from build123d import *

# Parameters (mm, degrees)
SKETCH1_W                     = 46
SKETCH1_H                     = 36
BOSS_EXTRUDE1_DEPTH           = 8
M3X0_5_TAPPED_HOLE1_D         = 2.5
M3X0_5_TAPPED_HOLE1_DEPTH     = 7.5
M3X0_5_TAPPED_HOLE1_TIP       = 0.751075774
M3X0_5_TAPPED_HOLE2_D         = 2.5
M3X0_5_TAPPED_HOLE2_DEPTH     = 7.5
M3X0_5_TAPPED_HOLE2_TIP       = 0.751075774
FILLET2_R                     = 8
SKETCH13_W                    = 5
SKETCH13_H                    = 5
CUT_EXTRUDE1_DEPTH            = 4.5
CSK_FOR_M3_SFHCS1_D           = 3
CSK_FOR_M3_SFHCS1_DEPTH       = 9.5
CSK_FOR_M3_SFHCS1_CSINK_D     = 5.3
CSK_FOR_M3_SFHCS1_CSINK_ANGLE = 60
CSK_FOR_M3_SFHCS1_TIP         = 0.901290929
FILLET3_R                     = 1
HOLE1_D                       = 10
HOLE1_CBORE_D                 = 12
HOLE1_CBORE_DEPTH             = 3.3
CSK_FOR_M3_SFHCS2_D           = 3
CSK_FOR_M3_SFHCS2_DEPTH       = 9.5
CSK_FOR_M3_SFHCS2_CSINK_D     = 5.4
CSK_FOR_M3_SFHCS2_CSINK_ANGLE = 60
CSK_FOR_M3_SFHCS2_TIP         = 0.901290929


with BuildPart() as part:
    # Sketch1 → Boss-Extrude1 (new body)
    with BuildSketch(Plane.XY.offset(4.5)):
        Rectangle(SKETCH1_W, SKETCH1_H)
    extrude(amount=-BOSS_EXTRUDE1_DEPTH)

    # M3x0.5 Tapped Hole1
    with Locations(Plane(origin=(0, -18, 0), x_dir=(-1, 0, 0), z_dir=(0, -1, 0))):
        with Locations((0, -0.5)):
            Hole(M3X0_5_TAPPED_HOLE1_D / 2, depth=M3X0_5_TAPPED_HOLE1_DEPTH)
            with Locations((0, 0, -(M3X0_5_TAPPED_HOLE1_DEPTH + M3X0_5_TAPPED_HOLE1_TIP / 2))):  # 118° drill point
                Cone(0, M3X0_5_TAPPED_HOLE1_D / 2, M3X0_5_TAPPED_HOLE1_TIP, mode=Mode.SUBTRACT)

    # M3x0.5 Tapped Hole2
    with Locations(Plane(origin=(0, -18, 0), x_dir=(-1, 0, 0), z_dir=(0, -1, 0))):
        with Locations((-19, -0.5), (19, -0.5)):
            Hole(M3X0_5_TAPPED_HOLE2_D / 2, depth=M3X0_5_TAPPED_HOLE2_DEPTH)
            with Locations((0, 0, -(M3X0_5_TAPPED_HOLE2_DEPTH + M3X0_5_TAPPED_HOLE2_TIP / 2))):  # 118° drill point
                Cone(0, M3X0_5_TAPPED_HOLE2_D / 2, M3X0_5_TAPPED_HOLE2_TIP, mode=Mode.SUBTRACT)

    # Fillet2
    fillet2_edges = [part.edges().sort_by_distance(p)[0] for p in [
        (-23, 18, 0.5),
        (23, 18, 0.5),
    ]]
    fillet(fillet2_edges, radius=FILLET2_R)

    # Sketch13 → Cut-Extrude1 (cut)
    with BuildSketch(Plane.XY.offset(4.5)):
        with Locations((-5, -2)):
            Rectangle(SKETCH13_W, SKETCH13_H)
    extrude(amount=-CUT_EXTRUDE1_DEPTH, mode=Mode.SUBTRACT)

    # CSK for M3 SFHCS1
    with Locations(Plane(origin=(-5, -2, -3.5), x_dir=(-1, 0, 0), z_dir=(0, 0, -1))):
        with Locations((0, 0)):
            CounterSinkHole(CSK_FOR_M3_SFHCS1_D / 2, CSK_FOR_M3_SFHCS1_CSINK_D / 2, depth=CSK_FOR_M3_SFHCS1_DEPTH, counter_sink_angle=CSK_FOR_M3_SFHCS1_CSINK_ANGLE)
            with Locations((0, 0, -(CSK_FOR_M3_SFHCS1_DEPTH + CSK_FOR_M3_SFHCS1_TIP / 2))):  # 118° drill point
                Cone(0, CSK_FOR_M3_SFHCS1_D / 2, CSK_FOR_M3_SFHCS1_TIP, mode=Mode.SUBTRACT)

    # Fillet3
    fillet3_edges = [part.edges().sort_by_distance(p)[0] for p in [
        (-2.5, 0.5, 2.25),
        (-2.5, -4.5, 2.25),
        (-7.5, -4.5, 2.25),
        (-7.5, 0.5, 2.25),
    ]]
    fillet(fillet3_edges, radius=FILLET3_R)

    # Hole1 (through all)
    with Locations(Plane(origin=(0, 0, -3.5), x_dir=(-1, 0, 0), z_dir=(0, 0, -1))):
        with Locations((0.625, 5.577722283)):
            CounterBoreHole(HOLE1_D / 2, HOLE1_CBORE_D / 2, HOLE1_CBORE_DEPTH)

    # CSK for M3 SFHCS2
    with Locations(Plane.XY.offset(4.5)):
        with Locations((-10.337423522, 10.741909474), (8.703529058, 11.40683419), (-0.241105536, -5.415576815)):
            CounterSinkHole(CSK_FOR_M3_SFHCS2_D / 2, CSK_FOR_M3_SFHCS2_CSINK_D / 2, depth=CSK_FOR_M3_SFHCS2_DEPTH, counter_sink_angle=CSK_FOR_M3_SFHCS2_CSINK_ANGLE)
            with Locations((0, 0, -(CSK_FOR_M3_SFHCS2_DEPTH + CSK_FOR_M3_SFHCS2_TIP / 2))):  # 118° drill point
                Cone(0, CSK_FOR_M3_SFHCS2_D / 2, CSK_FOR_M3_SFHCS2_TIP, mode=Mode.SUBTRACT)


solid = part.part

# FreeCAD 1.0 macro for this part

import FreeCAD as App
import Part
import Sketcher

V = App.Vector


def edges_at(feature, points):
    """Names of the edges that pass closest to the given points."""
    edges = feature.Shape.Edges
    near = lambda p: min(range(len(edges)), key=lambda i: edges[i].distToShape(Part.Vertex(*p))[0])
    return sorted({f"Edge{near(p) + 1}" for p in points})

doc = App.newDocument("Part")
params = doc.addObject("Spreadsheet::Sheet", "Params")
for row, (alias, value) in enumerate([
    ("sketch1_width", "46 mm"),
    ("sketch1_height", "36 mm"),
    ("pad1_length", "8 mm"),
    ("sketch2_diameter", "2.5 mm"),
    ("hole_diameter", "2.5 mm"),
    ("hole_depth", "7.5 mm"),
    ("sketch3_diameter", "2.5 mm"),
    ("hole2_diameter", "2.5 mm"),
    ("hole2_depth", "7.5 mm"),
    ("fillet_radius", "8 mm"),
    ("sketch4_width", "5 mm"),
    ("pocket1_length", "4.5 mm"),
    ("sketch5_diameter", "3 mm"),
    ("hole3_diameter", "3 mm"),
    ("hole3_depth", "9.5 mm"),
    ("hole3_csink_diameter", "5.3 mm"),
    ("fillet2_radius", "1 mm"),
    ("sketch6_diameter", "10 mm"),
    ("hole4_diameter", "10 mm"),
    ("hole4_cbore_diameter", "12 mm"),
    ("hole4_cbore_depth", "3.3 mm"),
    ("sketch7_diameter", "3 mm"),
    ("hole5_diameter", "3 mm"),
    ("hole5_depth", "9.5 mm"),
    ("hole5_csink_diameter", "5.4 mm"),
], start=1):
    params.set(f"A{row}", alias)
    params.set(f"B{row}", "=" + value)
    params.setAlias(f"B{row}", alias)

body = doc.addObject("PartDesign::Body", "Body")

# Sketch on XY plane
sketch1 = doc.addObject("Sketcher::SketchObject", "Sketch")
body.addObject(sketch1)
sketch1.AttachmentSupport = (doc.XY_Plane, [""])
sketch1.MapMode = "FlatFace"
sketch1.AttachmentOffset = App.Placement(V(0, 0, 4.5), App.Rotation())
sketch1.addGeometry([
    Part.LineSegment(V(-23, 18, 0), V(-23, -18, 0)),
    Part.LineSegment(V(-23, -18, 0), V(23, -18, 0)),
    Part.LineSegment(V(23, -18, 0), V(23, 18, 0)),
    Part.LineSegment(V(23, 18, 0), V(-23, 18, 0)),
], False)
sketch1.addConstraint([
    Sketcher.Constraint("Coincident", 0, 2, 1, 1),
    Sketcher.Constraint("Coincident", 1, 2, 2, 1),
    Sketcher.Constraint("Coincident", 2, 2, 3, 1),
    Sketcher.Constraint("Coincident", 3, 2, 0, 1),
    Sketcher.Constraint("Vertical", 0),
    Sketcher.Constraint("Horizontal", 1),
    Sketcher.Constraint("Vertical", 2),
    Sketcher.Constraint("Horizontal", 3),
    Sketcher.Constraint("Symmetric", 0, 2, 2, 2, -1, 1),
    Sketcher.Constraint("DistanceX", 1, 1, 1, 2, 46.0),
    Sketcher.Constraint("DistanceY", 0, 2, 0, 1, 36.0),
])
sketch1.setExpression("Constraints[9]", "Params.sketch1_width")
sketch1.setExpression("Constraints[10]", "Params.sketch1_height")
pad1 = doc.addObject("PartDesign::Pad", "Pad")
body.addObject(pad1)
pad1.Profile = sketch1
pad1.setExpression("Length", "Params.pad1_length")
pad1.Reversed = True

# Sketch on XZ plane
sketch2 = doc.addObject("Sketcher::SketchObject", "Sketch001")
body.addObject(sketch2)
sketch2.AttachmentSupport = (doc.XZ_Plane, [""])
sketch2.MapMode = "FlatFace"
sketch2.AttachmentOffset = App.Placement(V(0, 0, 18), App.Rotation())
sketch2.addGeometry(Part.Circle(V(0, 0.5, 0), V(0, 0, 1), 1.2), False)
sketch2.addConstraint([
    Sketcher.Constraint("PointOnObject", 0, 3, -2),
    Sketcher.Constraint("Diameter", 0, 2.5),
    Sketcher.Constraint("DistanceY", -1, 1, 0, 3, 0.5),
])
sketch2.setExpression("Constraints[1]", "Params.sketch2_diameter")
doc.recompute()
hole = doc.addObject("PartDesign::Hole", "Hole")
body.addObject(hole)
hole.Profile = sketch2
hole.ThreadType = "None"
hole.setExpression("Diameter", "Params.hole_diameter")
hole.DepthType = "Dimension"
hole.setExpression("Depth", "Params.hole_depth")
hole.DrillPoint = "Angled"
hole.DrillPointAngle = 118

# Sketch on XZ plane
sketch3 = doc.addObject("Sketcher::SketchObject", "Sketch002")
body.addObject(sketch3)
sketch3.AttachmentSupport = (doc.XZ_Plane, [""])
sketch3.MapMode = "FlatFace"
sketch3.AttachmentOffset = App.Placement(V(0, 0, 18), App.Rotation())
sketch3.addGeometry([
    Part.Circle(V(19, 0.5, 0), V(0, 0, 1), 1.2),
    Part.Circle(V(-19, 0.5, 0), V(0, 0, 1), 1.2),
], False)
sketch3.addConstraint([
    Sketcher.Constraint("Equal", 0, 1),
    Sketcher.Constraint("Symmetric", 0, 3, 1, 3, -2),
    Sketcher.Constraint("Diameter", 0, 2.5),
    Sketcher.Constraint("DistanceX", -1, 1, 0, 3, 19.0),
    Sketcher.Constraint("DistanceY", -1, 1, 0, 3, 0.5),
])
sketch3.setExpression("Constraints[2]", "Params.sketch3_diameter")
doc.recompute()
hole2 = doc.addObject("PartDesign::Hole", "Hole001")
body.addObject(hole2)
hole2.Profile = sketch3
hole2.ThreadType = "None"
hole2.setExpression("Diameter", "Params.hole2_diameter")
hole2.DepthType = "Dimension"
hole2.setExpression("Depth", "Params.hole2_depth")
hole2.DrillPoint = "Angled"
hole2.DrillPointAngle = 118
doc.recompute()

fillet = doc.addObject("PartDesign::Fillet", "Fillet")
body.addObject(fillet)
fillet.Base = (hole2, edges_at(hole2, [(-23, 18, 0.5), (23, 18, 0.5)]))
fillet.setExpression("Radius", "Params.fillet_radius")

# Sketch on XY plane
sketch4 = doc.addObject("Sketcher::SketchObject", "Sketch003")
body.addObject(sketch4)
sketch4.AttachmentSupport = (doc.XY_Plane, [""])
sketch4.MapMode = "FlatFace"
sketch4.AttachmentOffset = App.Placement(V(0, 0, 4.5), App.Rotation())
sketch4.addGeometry([
    Part.LineSegment(V(-8, 0, 0), V(-8, -4, 0)),
    Part.LineSegment(V(-8, -4, 0), V(-2, -4, 0)),
    Part.LineSegment(V(-2, -4, 0), V(-2, 0, 0)),
    Part.LineSegment(V(-2, 0, 0), V(-8, 0, 0)),
], False)
sketch4.addConstraint([
    Sketcher.Constraint("Coincident", 0, 2, 1, 1),
    Sketcher.Constraint("Coincident", 1, 2, 2, 1),
    Sketcher.Constraint("Coincident", 2, 2, 3, 1),
    Sketcher.Constraint("Coincident", 3, 2, 0, 1),
    Sketcher.Constraint("Vertical", 0),
    Sketcher.Constraint("Horizontal", 1),
    Sketcher.Constraint("Vertical", 2),
    Sketcher.Constraint("Horizontal", 3),
    Sketcher.Constraint("Equal", 3, 0),
    Sketcher.Constraint("DistanceX", 1, 1, 1, 2, 5.0),
    Sketcher.Constraint("DistanceX", 0, 2, -1, 1, 7.5),
    Sketcher.Constraint("DistanceY", 0, 2, -1, 1, 4.5),
])
sketch4.setExpression("Constraints[9]", "Params.sketch4_width")
pocket1 = doc.addObject("PartDesign::Pocket", "Pocket")
body.addObject(pocket1)
pocket1.Profile = sketch4
pocket1.setExpression("Length", "Params.pocket1_length")

# Sketch on XY plane
sketch5 = doc.addObject("Sketcher::SketchObject", "Sketch004")
body.addObject(sketch5)
sketch5.AttachmentSupport = (doc.XY_Plane, [""])
sketch5.MapMode = "FlatFace"
sketch5.AttachmentOffset = App.Placement(V(0, 0, -3.5), App.Rotation())
sketch5.addGeometry(Part.Circle(V(-5, -2, 0), V(0, 0, 1), 1.5), False)
sketch5.addConstraint([
    Sketcher.Constraint("Diameter", 0, 3.0),
    Sketcher.Constraint("DistanceX", 0, 3, -1, 1, 5.0),
    Sketcher.Constraint("DistanceY", 0, 3, -1, 1, 2.0),
])
sketch5.setExpression("Constraints[0]", "Params.sketch5_diameter")
doc.recompute()
hole3 = doc.addObject("PartDesign::Hole", "Hole002")
body.addObject(hole3)
hole3.Profile = sketch5
hole3.ThreadType = "None"
hole3.setExpression("Diameter", "Params.hole3_diameter")
hole3.DepthType = "Dimension"
hole3.setExpression("Depth", "Params.hole3_depth")
hole3.DrillPoint = "Angled"
hole3.DrillPointAngle = 118
hole3.HoleCutType = "Countersink"
hole3.setExpression("HoleCutDiameter", "Params.hole3_csink_diameter")
hole3.HoleCutCountersinkAngle = 60
hole3.Reversed = True
doc.recompute()

fillet2 = doc.addObject("PartDesign::Fillet", "Fillet001")
body.addObject(fillet2)
fillet2.Base = (hole3, edges_at(hole3, [
    (-2.5, 0.5, 2.25),
    (-2.5, -4.5, 2.25),
    (-7.5, -4.5, 2.25),
    (-7.5, 0.5, 2.25),
]))
fillet2.setExpression("Radius", "Params.fillet2_radius")

# Sketch on XY plane
sketch6 = doc.addObject("Sketcher::SketchObject", "Sketch005")
body.addObject(sketch6)
sketch6.AttachmentSupport = (doc.XY_Plane, [""])
sketch6.MapMode = "FlatFace"
sketch6.AttachmentOffset = App.Placement(V(0, 0, -3.5), App.Rotation())
sketch6.addGeometry(Part.Circle(V(-1, 6, 0), V(0, 0, 1), 5), False)
sketch6.addConstraint([
    Sketcher.Constraint("Diameter", 0, 10.0),
    Sketcher.Constraint("DistanceX", 0, 3, -1, 1, 0.625),
    Sketcher.Constraint("DistanceY", -1, 1, 0, 3, 5.577722),
])
sketch6.setExpression("Constraints[0]", "Params.sketch6_diameter")
doc.recompute()
hole4 = doc.addObject("PartDesign::Hole", "Hole003")
body.addObject(hole4)
hole4.Profile = sketch6
hole4.ThreadType = "None"
hole4.setExpression("Diameter", "Params.hole4_diameter")
hole4.DepthType = "ThroughAll"
hole4.HoleCutType = "Counterbore"
hole4.setExpression("HoleCutDiameter", "Params.hole4_cbore_diameter")
hole4.setExpression("HoleCutDepth", "Params.hole4_cbore_depth")
hole4.Reversed = True

# Sketch on XY plane
sketch7 = doc.addObject("Sketcher::SketchObject", "Sketch006")
body.addObject(sketch7)
sketch7.AttachmentSupport = (doc.XY_Plane, [""])
sketch7.MapMode = "FlatFace"
sketch7.AttachmentOffset = App.Placement(V(0, 0, 4.5), App.Rotation())
sketch7.addGeometry([
    Part.Circle(V(-10.3, 10.7, 0), V(0, 0, 1), 1.5),
    Part.Circle(V(8.7, 11.4, 0), V(0, 0, 1), 1.5),
    Part.Circle(V(-0.2, -5.4, 0), V(0, 0, 1), 1.5),
], False)
sketch7.addConstraint([
    Sketcher.Constraint("Equal", 0, 1),
    Sketcher.Constraint("Equal", 1, 2),
    Sketcher.Constraint("Diameter", 0, 3.0),
    Sketcher.Constraint("DistanceY", -1, 1, 0, 3, 10.741909),
    Sketcher.Constraint("DistanceX", -1, 1, 1, 3, 8.703529),
    Sketcher.Constraint("DistanceY", 2, 3, 1, 3, 16.822411),
    Sketcher.Constraint("DistanceX", 0, 3, -1, 1, 10.337424),
    Sketcher.Constraint("DistanceY", -1, 1, 1, 3, 11.406834),
    Sketcher.Constraint("DistanceX", 2, 3, -1, 1, 0.241106),
])
sketch7.setExpression("Constraints[2]", "Params.sketch7_diameter")
doc.recompute()
hole5 = doc.addObject("PartDesign::Hole", "Hole004")
body.addObject(hole5)
hole5.Profile = sketch7
hole5.ThreadType = "None"
hole5.setExpression("Diameter", "Params.hole5_diameter")
hole5.DepthType = "Dimension"
hole5.setExpression("Depth", "Params.hole5_depth")
hole5.DrillPoint = "Angled"
hole5.DrillPointAngle = 118
hole5.HoleCutType = "Countersink"
hole5.setExpression("HoleCutDiameter", "Params.hole5_csink_diameter")
hole5.HoleCutCountersinkAngle = 60

doc.recompute()
